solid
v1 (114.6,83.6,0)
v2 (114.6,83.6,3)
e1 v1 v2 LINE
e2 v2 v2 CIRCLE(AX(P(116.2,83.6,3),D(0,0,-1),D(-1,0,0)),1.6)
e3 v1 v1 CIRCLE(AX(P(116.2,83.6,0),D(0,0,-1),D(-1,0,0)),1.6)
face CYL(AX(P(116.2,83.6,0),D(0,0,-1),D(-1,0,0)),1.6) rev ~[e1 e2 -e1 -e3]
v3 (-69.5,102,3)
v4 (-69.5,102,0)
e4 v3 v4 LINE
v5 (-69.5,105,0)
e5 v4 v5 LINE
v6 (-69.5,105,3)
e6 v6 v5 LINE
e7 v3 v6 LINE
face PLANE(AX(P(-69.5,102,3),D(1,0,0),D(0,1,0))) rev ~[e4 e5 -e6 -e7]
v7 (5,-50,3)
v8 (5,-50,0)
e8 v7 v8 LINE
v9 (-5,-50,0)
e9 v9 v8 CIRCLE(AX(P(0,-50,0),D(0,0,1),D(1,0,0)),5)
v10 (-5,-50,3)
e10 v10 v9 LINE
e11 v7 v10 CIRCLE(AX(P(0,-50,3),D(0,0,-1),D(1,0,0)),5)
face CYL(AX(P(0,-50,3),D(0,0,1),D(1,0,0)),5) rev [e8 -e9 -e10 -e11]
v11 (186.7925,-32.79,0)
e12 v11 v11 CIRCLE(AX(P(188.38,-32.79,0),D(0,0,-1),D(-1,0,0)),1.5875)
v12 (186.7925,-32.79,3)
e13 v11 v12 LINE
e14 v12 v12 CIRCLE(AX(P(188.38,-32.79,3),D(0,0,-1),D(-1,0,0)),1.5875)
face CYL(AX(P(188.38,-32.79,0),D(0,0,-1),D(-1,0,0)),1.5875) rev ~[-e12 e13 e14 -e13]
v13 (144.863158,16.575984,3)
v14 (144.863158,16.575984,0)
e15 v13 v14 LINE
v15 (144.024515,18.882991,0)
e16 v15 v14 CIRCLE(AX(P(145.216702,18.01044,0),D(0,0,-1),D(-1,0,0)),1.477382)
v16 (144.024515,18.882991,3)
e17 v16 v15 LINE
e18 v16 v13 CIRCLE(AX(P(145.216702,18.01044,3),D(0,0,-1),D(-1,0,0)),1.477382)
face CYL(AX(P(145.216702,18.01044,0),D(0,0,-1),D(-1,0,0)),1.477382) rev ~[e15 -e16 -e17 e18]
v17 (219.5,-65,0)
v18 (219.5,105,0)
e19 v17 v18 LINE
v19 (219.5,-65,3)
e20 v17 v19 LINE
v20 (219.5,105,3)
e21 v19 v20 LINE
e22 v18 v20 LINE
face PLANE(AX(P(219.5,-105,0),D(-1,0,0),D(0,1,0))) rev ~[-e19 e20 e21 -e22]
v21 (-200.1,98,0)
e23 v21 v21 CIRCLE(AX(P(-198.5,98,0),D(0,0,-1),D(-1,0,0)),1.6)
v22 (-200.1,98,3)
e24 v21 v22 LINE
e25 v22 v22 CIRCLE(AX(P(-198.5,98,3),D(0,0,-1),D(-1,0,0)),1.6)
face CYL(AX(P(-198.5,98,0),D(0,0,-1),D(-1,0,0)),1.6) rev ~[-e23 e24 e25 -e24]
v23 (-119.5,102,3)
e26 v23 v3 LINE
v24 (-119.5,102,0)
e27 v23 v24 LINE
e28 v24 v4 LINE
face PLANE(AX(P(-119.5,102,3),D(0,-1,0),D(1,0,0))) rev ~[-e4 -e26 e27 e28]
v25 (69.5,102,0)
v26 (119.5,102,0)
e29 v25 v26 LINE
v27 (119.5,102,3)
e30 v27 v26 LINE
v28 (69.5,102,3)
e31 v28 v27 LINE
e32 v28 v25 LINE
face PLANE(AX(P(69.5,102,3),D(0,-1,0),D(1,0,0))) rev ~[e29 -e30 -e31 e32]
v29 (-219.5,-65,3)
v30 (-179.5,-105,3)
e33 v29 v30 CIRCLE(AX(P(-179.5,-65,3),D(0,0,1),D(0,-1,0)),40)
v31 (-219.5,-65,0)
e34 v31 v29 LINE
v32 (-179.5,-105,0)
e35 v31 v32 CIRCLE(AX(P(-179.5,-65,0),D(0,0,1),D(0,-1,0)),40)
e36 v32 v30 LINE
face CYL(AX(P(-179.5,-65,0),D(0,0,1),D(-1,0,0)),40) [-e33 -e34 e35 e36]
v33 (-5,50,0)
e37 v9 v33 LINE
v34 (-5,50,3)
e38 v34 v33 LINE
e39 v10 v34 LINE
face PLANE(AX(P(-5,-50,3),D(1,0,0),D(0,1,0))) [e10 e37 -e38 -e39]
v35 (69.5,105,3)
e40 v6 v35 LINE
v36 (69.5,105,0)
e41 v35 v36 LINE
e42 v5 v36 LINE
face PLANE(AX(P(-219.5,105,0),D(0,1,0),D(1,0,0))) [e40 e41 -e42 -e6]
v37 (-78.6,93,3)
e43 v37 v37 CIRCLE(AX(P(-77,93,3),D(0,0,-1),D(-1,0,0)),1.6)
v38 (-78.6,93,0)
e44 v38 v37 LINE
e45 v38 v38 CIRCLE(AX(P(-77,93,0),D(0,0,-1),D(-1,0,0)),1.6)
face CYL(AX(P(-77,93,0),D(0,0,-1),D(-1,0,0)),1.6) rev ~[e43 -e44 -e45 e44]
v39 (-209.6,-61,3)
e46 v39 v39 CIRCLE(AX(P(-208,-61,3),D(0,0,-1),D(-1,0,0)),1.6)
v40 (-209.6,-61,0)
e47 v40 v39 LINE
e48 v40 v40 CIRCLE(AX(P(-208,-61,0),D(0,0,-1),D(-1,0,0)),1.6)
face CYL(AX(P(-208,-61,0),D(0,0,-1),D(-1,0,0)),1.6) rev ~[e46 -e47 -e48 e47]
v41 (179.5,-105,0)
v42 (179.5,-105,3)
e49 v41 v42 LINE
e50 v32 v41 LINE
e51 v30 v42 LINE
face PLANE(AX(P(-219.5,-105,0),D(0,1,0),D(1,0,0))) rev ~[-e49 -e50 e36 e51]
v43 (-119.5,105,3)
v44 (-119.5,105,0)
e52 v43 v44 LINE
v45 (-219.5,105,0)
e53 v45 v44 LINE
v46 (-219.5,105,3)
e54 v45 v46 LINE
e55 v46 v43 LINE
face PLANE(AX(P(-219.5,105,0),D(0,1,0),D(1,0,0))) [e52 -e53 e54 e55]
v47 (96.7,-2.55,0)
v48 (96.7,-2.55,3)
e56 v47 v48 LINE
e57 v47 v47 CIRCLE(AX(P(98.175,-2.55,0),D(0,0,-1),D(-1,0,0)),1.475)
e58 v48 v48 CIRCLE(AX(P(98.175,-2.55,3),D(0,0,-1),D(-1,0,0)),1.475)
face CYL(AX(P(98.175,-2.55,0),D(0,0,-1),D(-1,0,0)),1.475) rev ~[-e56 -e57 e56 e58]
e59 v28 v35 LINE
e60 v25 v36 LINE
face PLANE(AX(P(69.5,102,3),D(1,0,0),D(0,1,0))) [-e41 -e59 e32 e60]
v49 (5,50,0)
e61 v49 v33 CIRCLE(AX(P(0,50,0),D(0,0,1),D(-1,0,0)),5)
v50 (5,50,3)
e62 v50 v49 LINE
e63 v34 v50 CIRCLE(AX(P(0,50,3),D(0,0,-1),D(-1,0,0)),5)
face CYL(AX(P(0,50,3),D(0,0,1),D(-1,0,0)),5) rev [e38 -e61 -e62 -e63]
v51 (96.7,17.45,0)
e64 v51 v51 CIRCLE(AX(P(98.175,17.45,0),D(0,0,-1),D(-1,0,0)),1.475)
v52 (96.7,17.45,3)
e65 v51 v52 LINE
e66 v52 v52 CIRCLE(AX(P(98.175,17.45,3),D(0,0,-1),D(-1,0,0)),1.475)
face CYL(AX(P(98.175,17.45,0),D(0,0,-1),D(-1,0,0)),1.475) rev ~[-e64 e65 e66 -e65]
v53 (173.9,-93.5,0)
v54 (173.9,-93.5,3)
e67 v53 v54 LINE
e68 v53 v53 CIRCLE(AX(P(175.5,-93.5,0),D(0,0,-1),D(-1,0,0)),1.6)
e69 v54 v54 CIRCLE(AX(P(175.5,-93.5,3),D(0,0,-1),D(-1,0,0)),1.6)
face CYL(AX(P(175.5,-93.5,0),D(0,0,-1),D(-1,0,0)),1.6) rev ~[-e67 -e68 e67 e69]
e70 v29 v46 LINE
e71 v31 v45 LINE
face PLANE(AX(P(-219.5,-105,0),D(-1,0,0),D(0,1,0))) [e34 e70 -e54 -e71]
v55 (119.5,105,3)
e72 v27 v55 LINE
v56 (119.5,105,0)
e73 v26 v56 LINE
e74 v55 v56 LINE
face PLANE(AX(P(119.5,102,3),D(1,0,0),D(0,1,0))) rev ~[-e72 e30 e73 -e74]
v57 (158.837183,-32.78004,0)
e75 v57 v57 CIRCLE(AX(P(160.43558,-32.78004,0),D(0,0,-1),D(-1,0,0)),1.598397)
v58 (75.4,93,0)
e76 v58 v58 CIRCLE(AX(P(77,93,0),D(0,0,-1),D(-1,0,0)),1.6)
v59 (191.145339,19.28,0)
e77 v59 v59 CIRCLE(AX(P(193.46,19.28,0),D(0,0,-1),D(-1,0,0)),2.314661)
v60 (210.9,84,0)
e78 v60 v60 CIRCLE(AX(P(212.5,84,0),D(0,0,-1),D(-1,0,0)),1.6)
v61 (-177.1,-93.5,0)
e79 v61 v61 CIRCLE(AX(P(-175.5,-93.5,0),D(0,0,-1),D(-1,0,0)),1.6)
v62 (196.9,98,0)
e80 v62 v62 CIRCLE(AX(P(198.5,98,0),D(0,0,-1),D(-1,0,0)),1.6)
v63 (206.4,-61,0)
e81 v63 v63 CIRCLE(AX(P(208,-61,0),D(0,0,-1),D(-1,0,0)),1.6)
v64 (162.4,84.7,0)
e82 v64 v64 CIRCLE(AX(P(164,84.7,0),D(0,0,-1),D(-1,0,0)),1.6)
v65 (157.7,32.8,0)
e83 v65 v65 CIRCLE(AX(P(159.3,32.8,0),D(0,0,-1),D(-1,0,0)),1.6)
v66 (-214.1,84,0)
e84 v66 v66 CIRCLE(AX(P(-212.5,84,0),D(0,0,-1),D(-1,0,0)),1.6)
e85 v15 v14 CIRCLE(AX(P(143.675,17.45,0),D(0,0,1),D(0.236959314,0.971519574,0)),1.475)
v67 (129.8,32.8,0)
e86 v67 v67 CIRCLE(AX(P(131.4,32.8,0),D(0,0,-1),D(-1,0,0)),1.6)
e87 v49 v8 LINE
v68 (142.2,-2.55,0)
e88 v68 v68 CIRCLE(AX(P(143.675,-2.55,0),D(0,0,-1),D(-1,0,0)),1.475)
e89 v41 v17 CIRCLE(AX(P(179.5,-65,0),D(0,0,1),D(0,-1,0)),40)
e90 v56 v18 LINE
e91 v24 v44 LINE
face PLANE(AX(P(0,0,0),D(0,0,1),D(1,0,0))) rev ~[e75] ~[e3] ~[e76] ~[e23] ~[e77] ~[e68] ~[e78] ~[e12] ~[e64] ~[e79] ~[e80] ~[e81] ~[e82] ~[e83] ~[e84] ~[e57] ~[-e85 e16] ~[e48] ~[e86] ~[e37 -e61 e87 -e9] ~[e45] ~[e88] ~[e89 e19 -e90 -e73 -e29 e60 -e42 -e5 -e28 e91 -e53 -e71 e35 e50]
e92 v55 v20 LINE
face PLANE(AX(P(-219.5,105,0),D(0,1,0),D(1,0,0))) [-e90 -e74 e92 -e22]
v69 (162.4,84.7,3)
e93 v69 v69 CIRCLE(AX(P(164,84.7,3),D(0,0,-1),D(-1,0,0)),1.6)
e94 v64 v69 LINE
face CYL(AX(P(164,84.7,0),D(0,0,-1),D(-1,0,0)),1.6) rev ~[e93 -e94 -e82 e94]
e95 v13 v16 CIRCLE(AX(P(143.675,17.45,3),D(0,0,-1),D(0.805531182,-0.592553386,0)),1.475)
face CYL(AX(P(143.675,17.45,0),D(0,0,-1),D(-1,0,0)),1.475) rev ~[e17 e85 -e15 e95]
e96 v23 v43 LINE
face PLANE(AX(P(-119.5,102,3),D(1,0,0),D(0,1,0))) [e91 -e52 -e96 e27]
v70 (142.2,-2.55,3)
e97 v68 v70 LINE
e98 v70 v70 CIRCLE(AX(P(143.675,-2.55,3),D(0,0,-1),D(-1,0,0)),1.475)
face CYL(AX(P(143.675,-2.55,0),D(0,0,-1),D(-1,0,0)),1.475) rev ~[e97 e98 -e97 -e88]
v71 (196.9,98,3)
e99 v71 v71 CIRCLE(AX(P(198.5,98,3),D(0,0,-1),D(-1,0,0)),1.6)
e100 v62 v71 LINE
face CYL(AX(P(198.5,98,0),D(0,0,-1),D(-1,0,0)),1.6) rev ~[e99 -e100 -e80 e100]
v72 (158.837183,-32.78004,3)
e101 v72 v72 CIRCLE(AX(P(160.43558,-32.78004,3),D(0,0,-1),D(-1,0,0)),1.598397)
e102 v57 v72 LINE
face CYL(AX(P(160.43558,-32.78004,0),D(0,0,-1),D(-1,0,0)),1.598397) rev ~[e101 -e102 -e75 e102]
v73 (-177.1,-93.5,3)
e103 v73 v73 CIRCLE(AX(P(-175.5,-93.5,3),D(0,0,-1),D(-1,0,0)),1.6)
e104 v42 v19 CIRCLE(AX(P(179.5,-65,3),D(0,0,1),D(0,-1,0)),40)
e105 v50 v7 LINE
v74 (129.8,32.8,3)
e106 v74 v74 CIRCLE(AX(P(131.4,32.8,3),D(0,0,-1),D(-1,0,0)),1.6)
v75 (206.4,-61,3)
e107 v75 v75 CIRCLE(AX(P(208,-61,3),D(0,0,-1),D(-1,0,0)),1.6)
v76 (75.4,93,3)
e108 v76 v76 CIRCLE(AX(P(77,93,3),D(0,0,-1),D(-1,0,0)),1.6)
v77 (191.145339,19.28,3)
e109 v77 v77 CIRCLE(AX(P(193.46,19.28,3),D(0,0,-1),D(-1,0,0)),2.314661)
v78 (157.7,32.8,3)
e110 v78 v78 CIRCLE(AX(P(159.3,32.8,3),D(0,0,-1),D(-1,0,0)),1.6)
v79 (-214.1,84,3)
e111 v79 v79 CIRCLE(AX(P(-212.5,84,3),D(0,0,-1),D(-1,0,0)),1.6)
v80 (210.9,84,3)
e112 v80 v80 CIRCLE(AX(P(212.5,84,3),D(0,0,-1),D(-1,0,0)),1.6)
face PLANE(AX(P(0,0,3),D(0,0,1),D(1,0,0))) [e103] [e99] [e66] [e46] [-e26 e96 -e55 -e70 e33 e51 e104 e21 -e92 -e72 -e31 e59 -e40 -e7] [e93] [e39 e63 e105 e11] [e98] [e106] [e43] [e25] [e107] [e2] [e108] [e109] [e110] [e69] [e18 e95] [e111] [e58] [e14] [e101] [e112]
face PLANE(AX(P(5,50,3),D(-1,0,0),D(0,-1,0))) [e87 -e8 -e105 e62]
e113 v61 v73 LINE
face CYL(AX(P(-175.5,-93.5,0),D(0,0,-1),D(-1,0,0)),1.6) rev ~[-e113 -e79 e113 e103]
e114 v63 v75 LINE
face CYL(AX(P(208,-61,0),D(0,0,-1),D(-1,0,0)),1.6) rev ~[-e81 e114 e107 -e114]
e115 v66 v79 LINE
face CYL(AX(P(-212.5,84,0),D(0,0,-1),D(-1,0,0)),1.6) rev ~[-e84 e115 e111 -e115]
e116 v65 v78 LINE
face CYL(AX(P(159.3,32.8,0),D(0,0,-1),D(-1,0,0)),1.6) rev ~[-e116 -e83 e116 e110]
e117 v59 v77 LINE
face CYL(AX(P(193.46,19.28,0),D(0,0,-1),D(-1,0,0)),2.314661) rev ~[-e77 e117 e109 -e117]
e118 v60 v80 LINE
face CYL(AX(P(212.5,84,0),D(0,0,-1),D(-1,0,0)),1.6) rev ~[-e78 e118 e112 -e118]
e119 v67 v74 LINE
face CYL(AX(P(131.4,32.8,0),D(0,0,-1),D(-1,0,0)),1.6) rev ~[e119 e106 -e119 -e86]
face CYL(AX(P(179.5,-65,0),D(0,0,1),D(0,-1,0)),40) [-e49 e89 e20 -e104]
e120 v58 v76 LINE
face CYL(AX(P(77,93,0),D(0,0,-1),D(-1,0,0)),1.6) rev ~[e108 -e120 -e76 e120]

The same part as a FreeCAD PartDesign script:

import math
import FreeCAD as App
import Part
import Sketcher

V = App.Vector


def edges_at(feature, points):
    """Names of the edges that pass closest to the given points."""
    edges = feature.Shape.Edges
    near = lambda p: min(range(len(edges)), key=lambda i: edges[i].distToShape(Part.Vertex(*p))[0])
    return sorted({f"Edge{near(p) + 1}" for p in points})

doc = App.newDocument("Part")
body = doc.addObject("PartDesign::Body", "Body")

# Sketch on XY plane
sketch1 = body.newObject("Sketcher::SketchObject", "Sketch")
sketch1.AttachmentSupport = (doc.getObject("XY_Plane"), [""])
sketch1.MapMode = "FlatFace"
sketch1.addGeometry([
    Part.LineSegment(V(-220, 105, 0), V(-220, -105, 0)),
    Part.LineSegment(V(-220, -105, 0), V(220, -105, 0)),
    Part.LineSegment(V(220, -105, 0), V(220, 105, 0)),
    Part.LineSegment(V(220, 105, 0), V(-220, 105, 0)),
], False)
sketch1.addConstraint([
    Sketcher.Constraint("Coincident", 0, 2, 1, 1),
    Sketcher.Constraint("Coincident", 1, 2, 2, 1),
    Sketcher.Constraint("Coincident", 2, 2, 3, 1),
    Sketcher.Constraint("Coincident", 3, 2, 0, 1),
    Sketcher.Constraint("Vertical", 0),
    Sketcher.Constraint("Horizontal", 1),
    Sketcher.Constraint("Vertical", 2),
    Sketcher.Constraint("Horizontal", 3),
    Sketcher.Constraint("Symmetric", 0, 2, 2, 2, -1, 1),
    Sketcher.Constraint("DistanceX", 1, 1, 1, 2, 439.0),
    Sketcher.Constraint("DistanceY", 0, 2, 0, 1, 210.0),
])
pad1 = body.newObject("PartDesign::Pad", "Pad")
pad1.Profile = sketch1
pad1.Length = 3

# Sketch on XY plane
sketch2 = body.newObject("Sketcher::SketchObject", "Sketch001")
sketch2.AttachmentSupport = (doc.getObject("XY_Plane"), [""])
sketch2.MapMode = "FlatFace"
sketch2.addGeometry([
    Part.Circle(V(145.2, 18, 0), V(0, 0, 1), 1.5),
    Part.Circle(V(160.4, -32.8, 0), V(0, 0, 1), 1.6),
    Part.Circle(V(188.4, -32.8, 0), V(0, 0, 1), 1.6),
    Part.Circle(V(193.5, 19.3, 0), V(0, 0, 1), 2.3),
], False)
sketch2.addConstraint([
    Sketcher.Constraint("Diameter", 2, 3.175),
    Sketcher.Constraint("DistanceX", -1, 1, 2, 3, 188.38),
    Sketcher.Constraint("DistanceY", 2, 3, -1, 1, 32.79),
    Sketcher.Constraint("DistanceX", -1, 1, 3, 3, 193.46),
    Sketcher.Constraint("DistanceY", -1, 1, 3, 3, 19.28),
    Sketcher.Constraint("Diameter", 0, 2.954763),
    Sketcher.Constraint("Diameter", 1, 3.196794),
    Sketcher.Constraint("Diameter", 3, 4.629322),
    Sketcher.Constraint("DistanceX", -1, 1, 0, 3, 145.216702),
    Sketcher.Constraint("DistanceY", -1, 1, 0, 3, 18.01044),
    Sketcher.Constraint("DistanceX", -1, 1, 1, 3, 160.43558),
    Sketcher.Constraint("DistanceY", 1, 3, -1, 1, 32.78004),
])
pocket1 = body.newObject("PartDesign::Pocket", "Pocket")
pocket1.Profile = sketch2
pocket1.Length = 4
pocket1.Reversed = True

# Sketch on XY plane
sketch3 = body.newObject("Sketcher::SketchObject", "Sketch002")
sketch3.AttachmentSupport = (doc.getObject("XY_Plane"), [""])
sketch3.MapMode = "FlatFace"
sketch3.AttachmentOffset = App.Placement(V(0, 0, 3), App.Rotation())
sketch3.addGeometry([
    Part.LineSegment(V(-119.5, 105, 0), V(-119.5, 102, 0)),  # 0
    Part.LineSegment(V(-119.5, 102, 0), V(-69.5, 102, 0)),  # 1
    Part.LineSegment(V(-69.5, 102, 0), V(-69.5, 105, 0)),  # 2
    Part.LineSegment(V(-69.5, 105, 0), V(-119.5, 105, 0)),  # 3
    Part.LineSegment(V(69.5, 105, 0), V(69.5, 102, 0)),  # 4
    Part.LineSegment(V(69.5, 102, 0), V(119.5, 102, 0)),  # 5
    Part.LineSegment(V(119.5, 102, 0), V(119.5, 105, 0)),  # 6
    Part.LineSegment(V(119.5, 105, 0), V(69.5, 105, 0)),  # 7
], False)
sketch3.addConstraint([
    Sketcher.Constraint("Coincident", 0, 2, 1, 1),
    Sketcher.Constraint("Coincident", 1, 2, 2, 1),
    Sketcher.Constraint("Coincident", 2, 2, 3, 1),
    Sketcher.Constraint("Coincident", 3, 2, 0, 1),
    Sketcher.Constraint("Coincident", 4, 2, 5, 1),
    Sketcher.Constraint("Coincident", 5, 2, 6, 1),
    Sketcher.Constraint("Coincident", 6, 2, 7, 1),
    Sketcher.Constraint("Coincident", 7, 2, 4, 1),
    Sketcher.Constraint("Vertical", 0),
    Sketcher.Constraint("Horizontal", 1),
    Sketcher.Constraint("Vertical", 2),
    Sketcher.Constraint("Horizontal", 3),
    Sketcher.Constraint("Vertical", 4),
    Sketcher.Constraint("Horizontal", 5),
    Sketcher.Constraint("Vertical", 6),
    Sketcher.Constraint("Horizontal", 7),
    Sketcher.Constraint("Symmetric", 1, 2, 4, 2, -2),
    Sketcher.Constraint("Symmetric", 3, 2, 6, 2, -2),
    Sketcher.Constraint("DistanceX", 1, 1, 1, 2, 50.0),
    Sketcher.Constraint("DistanceY", 0, 2, 0, 1, 3.0),
    Sketcher.Constraint("DistanceY", -1, 1, 0, 2, 102.0),
    Sketcher.Constraint("DistanceX", 1, 2, 4, 2, 139.0),
])
pocket2 = body.newObject("PartDesign::Pocket", "Pocket001")
pocket2.Profile = sketch3
pocket2.Length = 4

# Sketch on XY plane
sketch4 = body.newObject("Sketcher::SketchObject", "Sketch003")
sketch4.AttachmentSupport = (doc.getObject("XY_Plane"), [""])
sketch4.MapMode = "FlatFace"
sketch4.AttachmentOffset = App.Placement(V(0, 0, 3), App.Rotation())
sketch4.addGeometry([
    Part.LineSegment(V(-5, 50, 0), V(-5, -50, 0)),
    Part.ArcOfCircle(Part.Circle(V(0, -50, 0), V(0, 0, 1), 5), math.radians(180), math.radians(360)),
    Part.LineSegment(V(5, -50, 0), V(5, 50, 0)),
    Part.ArcOfCircle(Part.Circle(V(0, 50, 0), V(0, 0, 1), 5), math.radians(0), math.radians(180)),
], False)
sketch4.addConstraint([
    Sketcher.Constraint("Tangent", 0, 2, 1, 1),
    Sketcher.Constraint("Tangent", 1, 2, 2, 1),
    Sketcher.Constraint("Tangent", 2, 2, 3, 1),
    Sketcher.Constraint("Tangent", 3, 2, 0, 1),
    Sketcher.Constraint("Vertical", 0),
    Sketcher.Constraint("Vertical", 2),
    Sketcher.Constraint("Symmetric", 1, 3, 3, 3, -1, 1),
    Sketcher.Constraint("Radius", 1, 5.0),
    Sketcher.Constraint("DistanceY", 0, 2, 0, 1, 100.0),
])
pocket3 = body.newObject("PartDesign::Pocket", "Pocket002")
pocket3.Profile = sketch4
pocket3.Type = "ThroughAll"
doc.recompute()

fillet = body.newObject("PartDesign::Fillet", "Fillet")
fillet.Base = (pocket3, edges_at(pocket3, [(219.5, -105, 1.5), (-219.5, -105, 1.5)]))
fillet.Radius = 40

# Sketch on XY plane
sketch5 = body.newObject("Sketcher::SketchObject", "Sketch004")
sketch5.AttachmentSupport = (doc.getObject("XY_Plane"), [""])
sketch5.MapMode = "FlatFace"
sketch5.addGeometry(Part.Circle(V(208, -61, 0), V(0, 0, 1), 1.6), False)
sketch5.addConstraint([
    Sketcher.Constraint("Diameter", 0, 3.2),
    Sketcher.Constraint("DistanceX", -1, 1, 0, 3, 208.0),
    Sketcher.Constraint("DistanceY", 0, 3, -1, 1, 61.0),
])
pocket4 = body.newObject("PartDesign::Pocket", "Pocket003")
pocket4.Profile = sketch5
pocket4.Type = "ThroughAll"
pocket4.Reversed = True

# Sketch on XY plane
sketch6 = body.newObject("Sketcher::SketchObject", "Sketch005")
sketch6.AttachmentSupport = (doc.getObject("XY_Plane"), [""])
sketch6.MapMode = "FlatFace"
sketch6.addGeometry([
    Part.Circle(V(-208, -61, 0), V(0, 0, 1), 1.6),
    Part.Circle(V(-175.5, -93.5, 0), V(0, 0, 1), 1.6),
], False)
sketch6.addConstraint([
    Sketcher.Constraint("Equal", 0, 1),
    Sketcher.Constraint("Diameter", 0, 3.2),
    Sketcher.Constraint("DistanceX", 0, 3, -1, 1, 208.0),
    Sketcher.Constraint("DistanceY", 0, 3, -1, 1, 61.0),
    Sketcher.Constraint("DistanceX", 1, 3, -1, 1, 175.5),
    Sketcher.Constraint("DistanceY", 1, 3, -1, 1, 93.5),
])
pocket5 = body.newObject("PartDesign::Pocket", "Pocket004")
pocket5.Profile = sketch6
pocket5.Type = "ThroughAll"
pocket5.Reversed = True

# Sketch on XY plane
sketch7 = body.newObject("Sketcher::SketchObject", "Sketch006")
sketch7.AttachmentSupport = (doc.getObject("XY_Plane"), [""])
sketch7.MapMode = "FlatFace"
sketch7.addGeometry(Part.Circle(V(175.5, -93.5, 0), V(0, 0, 1), 1.6), False)
sketch7.addConstraint([
    Sketcher.Constraint("Diameter", 0, 3.2),
    Sketcher.Constraint("DistanceX", -1, 1, 0, 3, 175.5),
    Sketcher.Constraint("DistanceY", 0, 3, -1, 1, 93.5),
])
pocket6 = body.newObject("PartDesign::Pocket", "Pocket005")
pocket6.Profile = sketch7
pocket6.Type = "ThroughAll"
pocket6.Reversed = True

# Sketch on XY plane
sketch8 = body.newObject("Sketcher::SketchObject", "Sketch007")
sketch8.AttachmentSupport = (doc.getObject("XY_Plane"), [""])
sketch8.MapMode = "FlatFace"
sketch8.addGeometry([
    Part.Circle(V(198.5, 98, 0), V(0, 0, 1), 1.6),
    Part.Circle(V(212.5, 84, 0), V(0, 0, 1), 1.6),
    Part.Circle(V(-198.5, 98, 0), V(0, 0, 1), 1.6),
    Part.Circle(V(-212.5, 84, 0), V(0, 0, 1), 1.6),
], False)
sketch8.addConstraint([
    Sketcher.Constraint("Equal", 0, 1),
    Sketcher.Constraint("Equal", 1, 2),
    Sketcher.Constraint("Equal", 2, 3),
    Sketcher.Constraint("Symmetric", 0, 3, 2, 3, -2),
    Sketcher.Constraint("Symmetric", 1, 3, 3, 3, -2),
    Sketcher.Constraint("Diameter", 0, 3.2),
    Sketcher.Constraint("DistanceY", -1, 1, 0, 3, 98.0),
    Sketcher.Constraint("DistanceY", -1, 1, 1, 3, 84.0),
    Sketcher.Constraint("DistanceX", 0, 3, 1, 3, 14.0),
    Sketcher.Constraint("DistanceX", 2, 3, 0, 3, 397.0),
])
pocket7 = body.newObject("PartDesign::Pocket", "Pocket006")
pocket7.Profile = sketch8
pocket7.Type = "ThroughAll"
pocket7.Reversed = True

# Sketch on XY plane
sketch9 = body.newObject("Sketcher::SketchObject", "Sketch008")
sketch9.AttachmentSupport = (doc.getObject("XY_Plane"), [""])
sketch9.MapMode = "FlatFace"
sketch9.addGeometry([
    Part.Circle(V(-77, 93, 0), V(0, 0, 1), 1.6),
    Part.Circle(V(77, 93, 0), V(0, 0, 1), 1.6),
], False)
sketch9.addConstraint([
    Sketcher.Constraint("Equal", 0, 1),
    Sketcher.Constraint("Symmetric", 0, 3, 1, 3, -2),
    Sketcher.Constraint("Diameter", 0, 3.2),
    Sketcher.Constraint("DistanceX", 0, 3, -1, 1, 77.0),
    Sketcher.Constraint("DistanceY", -1, 1, 0, 3, 93.0),
])
pocket8 = body.newObject("PartDesign::Pocket", "Pocket007")
pocket8.Profile = sketch9
pocket8.Type = "ThroughAll"
pocket8.Reversed = True

# Sketch on XY plane
sketch10 = body.newObject("Sketcher::SketchObject", "Sketch009")
sketch10.AttachmentSupport = (doc.getObject("XY_Plane"), [""])
sketch10.MapMode = "FlatFace"
sketch10.addGeometry([
    Part.Circle(V(131.4, 32.8, 0), V(0, 0, 1), 1.6),
    Part.Circle(V(159.3, 32.8, 0), V(0, 0, 1), 1.6),
    Part.Circle(V(116.2, 83.6, 0), V(0, 0, 1), 1.6),
    Part.Circle(V(164, 84.7, 0), V(0, 0, 1), 1.6),
], False)
sketch10.addConstraint([
    Sketcher.Constraint("Equal", 0, 1),
    Sketcher.Constraint("Equal", 1, 2),
    Sketcher.Constraint("Equal", 2, 3),
    Sketcher.Constraint("Horizontal", 0, 3, 1, 3),
    Sketcher.Constraint("Diameter", 0, 3.2),
    Sketcher.Constraint("DistanceX", -1, 1, 3, 3, 164.0),
    Sketcher.Constraint("DistanceX", -1, 1, 0, 3, 131.4),
    Sketcher.Constraint("DistanceY", -1, 1, 0, 3, 32.8),
    Sketcher.Constraint("DistanceX", -1, 1, 1, 3, 159.3),
    Sketcher.Constraint("DistanceX", -1, 1, 2, 3, 116.2),
    Sketcher.Constraint("DistanceY", -1, 1, 2, 3, 83.6),
    Sketcher.Constraint("DistanceY", -1, 1, 3, 3, 84.7),
])
pocket9 = body.newObject("PartDesign::Pocket", "Pocket008")
pocket9.Profile = sketch10
pocket9.Type = "ThroughAll"
pocket9.Reversed = True

# Sketch on XY plane
sketch11 = body.newObject("Sketcher::SketchObject", "Sketch010")
sketch11.AttachmentSupport = (doc.getObject("XY_Plane"), [""])
sketch11.MapMode = "FlatFace"
sketch11.addGeometry([
    Part.Circle(V(98.2, -2.5, 0), V(0, 0, 1), 1.5),
    Part.Circle(V(98.2, 17.4, 0), V(0, 0, 1), 1.5),
    Part.Circle(V(143.7, 17.4, 0), V(0, 0, 1), 1.5),
    Part.Circle(V(143.7, -2.5, 0), V(0, 0, 1), 1.5),
], False)
sketch11.addConstraint([
    Sketcher.Constraint("Equal", 0, 1),
    Sketcher.Constraint("Equal", 1, 2),
    Sketcher.Constraint("Equal", 2, 3),
    Sketcher.Constraint("Horizontal", 1, 3, 2, 3),
    Sketcher.Constraint("Horizontal", 0, 3, 3, 3),
    Sketcher.Constraint("Vertical", 0, 3, 1, 3),
    Sketcher.Constraint("Vertical", 2, 3, 3, 3),
    Sketcher.Constraint("Diameter", 0, 2.95),
    Sketcher.Constraint("DistanceY", 0, 3, 1, 3, 20.0),
    Sketcher.Constraint("DistanceX", 1, 3, 2, 3, 45.5),
    Sketcher.Constraint("DistanceY", 0, 3, -1, 1, 2.55),
    Sketcher.Constraint("DistanceX", -1, 1, 0, 3, 98.175),
])
pocket10 = body.newObject("PartDesign::Pocket", "Pocket009")
pocket10.Profile = sketch11
pocket10.Type = "ThroughAll"
pocket10.Reversed = True

doc.recompute()
